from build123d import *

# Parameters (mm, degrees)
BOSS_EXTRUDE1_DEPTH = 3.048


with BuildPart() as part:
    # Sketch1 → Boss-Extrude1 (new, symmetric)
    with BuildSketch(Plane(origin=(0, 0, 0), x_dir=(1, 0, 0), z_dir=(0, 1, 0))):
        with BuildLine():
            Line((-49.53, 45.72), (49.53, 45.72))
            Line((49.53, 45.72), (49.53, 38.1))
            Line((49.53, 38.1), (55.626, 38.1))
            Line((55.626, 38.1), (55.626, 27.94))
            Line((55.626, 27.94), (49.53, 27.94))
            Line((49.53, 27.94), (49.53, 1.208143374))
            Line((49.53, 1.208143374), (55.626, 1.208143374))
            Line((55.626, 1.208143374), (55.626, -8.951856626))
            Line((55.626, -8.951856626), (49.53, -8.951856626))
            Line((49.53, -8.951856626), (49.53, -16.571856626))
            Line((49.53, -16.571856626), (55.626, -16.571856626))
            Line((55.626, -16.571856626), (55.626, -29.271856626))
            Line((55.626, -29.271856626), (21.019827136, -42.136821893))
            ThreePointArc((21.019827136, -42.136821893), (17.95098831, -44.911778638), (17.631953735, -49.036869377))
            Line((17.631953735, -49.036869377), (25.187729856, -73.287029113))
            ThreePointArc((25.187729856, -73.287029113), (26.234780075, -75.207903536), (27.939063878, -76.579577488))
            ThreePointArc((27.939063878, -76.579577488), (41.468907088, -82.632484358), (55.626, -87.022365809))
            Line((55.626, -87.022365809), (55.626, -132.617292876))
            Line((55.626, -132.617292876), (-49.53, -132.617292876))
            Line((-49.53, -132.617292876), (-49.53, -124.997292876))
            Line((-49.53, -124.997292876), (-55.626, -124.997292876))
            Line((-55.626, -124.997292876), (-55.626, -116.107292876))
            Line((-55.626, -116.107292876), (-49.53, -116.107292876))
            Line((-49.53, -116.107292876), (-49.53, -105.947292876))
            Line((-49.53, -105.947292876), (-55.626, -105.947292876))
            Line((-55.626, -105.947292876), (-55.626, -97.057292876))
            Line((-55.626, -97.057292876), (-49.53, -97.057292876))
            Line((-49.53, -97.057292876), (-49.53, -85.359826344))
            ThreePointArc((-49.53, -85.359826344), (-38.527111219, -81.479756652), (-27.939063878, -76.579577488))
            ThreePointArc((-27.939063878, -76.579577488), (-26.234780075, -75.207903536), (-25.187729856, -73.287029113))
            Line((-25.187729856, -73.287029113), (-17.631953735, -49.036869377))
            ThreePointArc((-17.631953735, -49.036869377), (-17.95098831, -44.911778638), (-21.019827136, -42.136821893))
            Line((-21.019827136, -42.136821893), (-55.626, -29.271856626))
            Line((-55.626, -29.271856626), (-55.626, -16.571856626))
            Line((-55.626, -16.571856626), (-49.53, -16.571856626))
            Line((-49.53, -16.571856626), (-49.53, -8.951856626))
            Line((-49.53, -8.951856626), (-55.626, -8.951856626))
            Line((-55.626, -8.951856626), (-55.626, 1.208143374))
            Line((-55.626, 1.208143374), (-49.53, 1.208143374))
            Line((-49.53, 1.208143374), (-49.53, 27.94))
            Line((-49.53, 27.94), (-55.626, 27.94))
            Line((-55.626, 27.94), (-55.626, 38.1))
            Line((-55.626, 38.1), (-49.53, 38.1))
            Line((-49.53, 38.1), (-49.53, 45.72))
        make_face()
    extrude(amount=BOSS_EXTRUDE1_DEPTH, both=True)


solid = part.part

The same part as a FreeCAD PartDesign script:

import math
import FreeCAD as App
import Part
import Sketcher

V = App.Vector
Q = App.Units.Quantity

doc = App.newDocument("Part")
body = doc.addObject("PartDesign::Body", "Body")

# Sketch on XZ plane
sketch1 = body.newObject("Sketcher::SketchObject", "Sketch")
sketch1.AttachmentSupport = (doc.getObject("XZ_Plane"), [""])
sketch1.MapMode = "FlatFace"
sketch1.addGeometry([
    Part.LineSegment(V(49.5, -45.7, 0), V(-49.5, -45.7, 0)),  # 0
    Part.LineSegment(V(-49.5, -45.7, 0), V(-49.5, -38.1, 0)),  # 1
    Part.LineSegment(V(-49.5, -38.1, 0), V(-55.6, -38.1, 0)),  # 2
    Part.LineSegment(V(-55.6, -38.1, 0), V(-55.6, -27.9, 0)),  # 3
    Part.LineSegment(V(-55.6, -27.9, 0), V(-49.5, -27.9, 0)),  # 4
    Part.LineSegment(V(-49.5, -27.9, 0), V(-49.5, -1.2, 0)),  # 5
    Part.LineSegment(V(-49.5, -1.2, 0), V(-55.6, -1.2, 0)),  # 6
    Part.LineSegment(V(-55.6, -1.2, 0), V(-55.6, 9, 0)),  # 7
    Part.LineSegment(V(-55.6, 9, 0), V(-49.5, 9, 0)),  # 8
    Part.LineSegment(V(-49.5, 9, 0), V(-49.5, 16.6, 0)),  # 9
    Part.LineSegment(V(-49.5, 16.6, 0), V(-55.6, 16.6, 0)),  # 10
    Part.LineSegment(V(-55.6, 16.6, 0), V(-55.6, 29.3, 0)),  # 11
    Part.LineSegment(V(-55.6, 29.3, 0), V(-21, 42.1, 0)),  # 12
    Part.ArcOfCircle(Part.Circle(V(-23, 47.4, 0), V(0, 0, 1), 5.6), math.radians(-70), math.radians(17)),  # 13
    Part.LineSegment(V(-17.6, 49, 0), V(-25.2, 73.3, 0)),  # 14
    Part.ArcOfCircle(Part.Circle(V(-30.5, 71.6, 0), V(0, 0, 1), 5.6), math.radians(17), math.radians(62)),  # 15
    Part.ArcOfCircle(Part.Circle(V(-85.1, -33, 0), V(0, 0, 1), 123.6), math.radians(62.46), math.radians(73.28)),  # 16
    Part.LineSegment(V(-49.5, 85.4, 0), V(-49.5, 97.1, 0)),  # 17
    Part.LineSegment(V(-49.5, 97.1, 0), V(-55.6, 97.1, 0)),  # 18
    Part.LineSegment(V(-55.6, 97.1, 0), V(-55.6, 105.9, 0)),  # 19
    Part.LineSegment(V(-55.6, 105.9, 0), V(-49.5, 105.9, 0)),  # 20
    Part.LineSegment(V(-49.5, 105.9, 0), V(-49.5, 116.1, 0)),  # 21
    Part.LineSegment(V(-49.5, 116.1, 0), V(-55.6, 116.1, 0)),  # 22
    Part.LineSegment(V(-55.6, 116.1, 0), V(-55.6, 125, 0)),  # 23
    Part.LineSegment(V(-55.6, 125, 0), V(-49.5, 125, 0)),  # 24
    Part.LineSegment(V(-49.5, 125, 0), V(-49.5, 132.6, 0)),  # 25
    Part.LineSegment(V(-49.5, 132.6, 0), V(55.6, 132.6, 0)),  # 26
    Part.LineSegment(V(55.6, 132.6, 0), V(55.6, 87, 0)),  # 27
    Part.ArcOfCircle(Part.Circle(V(85.1, -33, 0), V(0, 0, 1), 123.6), math.radians(103.79), math.radians(117.54)),  # 28
    Part.ArcOfCircle(Part.Circle(V(30.5, 71.6, 0), V(0, 0, 1), 5.6), math.radians(118), math.radians(163)),  # 29
    Part.LineSegment(V(25.2, 73.3, 0), V(17.6, 49, 0)),  # 30
    Part.ArcOfCircle(Part.Circle(V(23, 47.4, 0), V(0, 0, 1), 5.6), math.radians(163), math.radians(250)),  # 31
    Part.LineSegment(V(21, 42.1, 0), V(55.6, 29.3, 0)),  # 32
    Part.LineSegment(V(55.6, 29.3, 0), V(55.6, 16.6, 0)),  # 33
    Part.LineSegment(V(55.6, 16.6, 0), V(49.5, 16.6, 0)),  # 34
    Part.LineSegment(V(49.5, 16.6, 0), V(49.5, 9, 0)),  # 35
    Part.LineSegment(V(49.5, 9, 0), V(55.6, 9, 0)),  # 36
    Part.LineSegment(V(55.6, 9, 0), V(55.6, -1.2, 0)),  # 37
    Part.LineSegment(V(55.6, -1.2, 0), V(49.5, -1.2, 0)),  # 38
    Part.LineSegment(V(49.5, -1.2, 0), V(49.5, -27.9, 0)),  # 39
    Part.LineSegment(V(49.5, -27.9, 0), V(55.6, -27.9, 0)),  # 40
    Part.LineSegment(V(55.6, -27.9, 0), V(55.6, -38.1, 0)),  # 41
    Part.LineSegment(V(55.6, -38.1, 0), V(49.5, -38.1, 0)),  # 42
    Part.LineSegment(V(49.5, -38.1, 0), V(49.5, -45.7, 0)),  # 43
], False)
sketch1.addConstraint([
    Sketcher.Constraint("Coincident", 0, 2, 1, 1),
    Sketcher.Constraint("Coincident", 1, 2, 2, 1),
    Sketcher.Constraint("Coincident", 2, 2, 3, 1),
    Sketcher.Constraint("Coincident", 3, 2, 4, 1),
    Sketcher.Constraint("Coincident", 4, 2, 5, 1),
    Sketcher.Constraint("Coincident", 5, 2, 6, 1),
    Sketcher.Constraint("Coincident", 6, 2, 7, 1),
    Sketcher.Constraint("Coincident", 7, 2, 8, 1),
    Sketcher.Constraint("Coincident", 8, 2, 9, 1),
    Sketcher.Constraint("Coincident", 9, 2, 10, 1),
    Sketcher.Constraint("Coincident", 10, 2, 11, 1),
    Sketcher.Constraint("Coincident", 11, 2, 12, 1),
    Sketcher.Constraint("Tangent", 12, 2, 13, 1),
    Sketcher.Constraint("Tangent", 13, 2, 14, 1),
    Sketcher.Constraint("Tangent", 14, 2, 15, 1),
    Sketcher.Constraint("Tangent", 15, 2, 16, 1),
    Sketcher.Constraint("Coincident", 16, 2, 17, 1),
    Sketcher.Constraint("Coincident", 17, 2, 18, 1),
    Sketcher.Constraint("Coincident", 18, 2, 19, 1),
    Sketcher.Constraint("Coincident", 19, 2, 20, 1),
    Sketcher.Constraint("Coincident", 20, 2, 21, 1),
    Sketcher.Constraint("Coincident", 21, 2, 22, 1),
    Sketcher.Constraint("Coincident", 22, 2, 23, 1),
    Sketcher.Constraint("Coincident", 23, 2, 24, 1),
    Sketcher.Constraint("Coincident", 24, 2, 25, 1),
    Sketcher.Constraint("Coincident", 25, 2, 26, 1),
    Sketcher.Constraint("Coincident", 26, 2, 27, 1),
    Sketcher.Constraint("Coincident", 27, 2, 28, 1),
    Sketcher.Constraint("Tangent", 28, 2, 29, 1),
    Sketcher.Constraint("Tangent", 29, 2, 30, 1),
    Sketcher.Constraint("Tangent", 30, 2, 31, 1),
    Sketcher.Constraint("Tangent", 31, 2, 32, 1),
    Sketcher.Constraint("Coincident", 32, 2, 33, 1),
    Sketcher.Constraint("Coincident", 33, 2, 34, 1),
    Sketcher.Constraint("Coincident", 34, 2, 35, 1),
    Sketcher.Constraint("Coincident", 35, 2, 36, 1),
    Sketcher.Constraint("Coincident", 36, 2, 37, 1),
    Sketcher.Constraint("Coincident", 37, 2, 38, 1),
    Sketcher.Constraint("Coincident", 38, 2, 39, 1),
    Sketcher.Constraint("Coincident", 39, 2, 40, 1),
    Sketcher.Constraint("Coincident", 40, 2, 41, 1),
    Sketcher.Constraint("Coincident", 41, 2, 42, 1),
    Sketcher.Constraint("Coincident", 42, 2, 43, 1),
    Sketcher.Constraint("Coincident", 43, 2, 0, 1),
    Sketcher.Constraint("Horizontal", 0),
    Sketcher.Constraint("Vertical", 1),
    Sketcher.Constraint("Horizontal", 2),
    Sketcher.Constraint("Vertical", 3),
    Sketcher.Constraint("Horizontal", 4),
    Sketcher.Constraint("Vertical", 5),
    Sketcher.Constraint("Horizontal", 6),
    Sketcher.Constraint("Vertical", 7),
    Sketcher.Constraint("Horizontal", 8),
    Sketcher.Constraint("Vertical", 9),
    Sketcher.Constraint("Horizontal", 10),
    Sketcher.Constraint("Vertical", 11),
    Sketcher.Constraint("Vertical", 17),
    Sketcher.Constraint("Horizontal", 18),
    Sketcher.Constraint("Vertical", 19),
    Sketcher.Constraint("Horizontal", 20),
    Sketcher.Constraint("Vertical", 21),
    Sketcher.Constraint("Horizontal", 22),
    Sketcher.Constraint("Vertical", 23),
    Sketcher.Constraint("Horizontal", 24),
    Sketcher.Constraint("Vertical", 25),
    Sketcher.Constraint("Horizontal", 26),
    Sketcher.Constraint("Vertical", 27),
    Sketcher.Constraint("Vertical", 33),
    Sketcher.Constraint("Horizontal", 34),
    Sketcher.Constraint("Vertical", 35),
    Sketcher.Constraint("Horizontal", 36),
    Sketcher.Constraint("Vertical", 37),
    Sketcher.Constraint("Horizontal", 38),
    Sketcher.Constraint("Vertical", 39),
    Sketcher.Constraint("Horizontal", 40),
    Sketcher.Constraint("Vertical", 41),
    Sketcher.Constraint("Horizontal", 42),
    Sketcher.Constraint("Vertical", 43),
    Sketcher.Constraint("Equal", 13, 15),
    Sketcher.Constraint("Equal", 16, 28),
    Sketcher.Constraint("Equal", 15, 29),
    Sketcher.Constraint("Equal", 29, 31),
    Sketcher.Constraint("Symmetric", 16, 3, 28, 3, -2),
    Sketcher.Constraint("Symmetric", 13, 3, 31, 3, -2),
    Sketcher.Constraint("Symmetric", 11, 2, 32, 2, -2),
    Sketcher.Constraint("Symmetric", 9, 2, 34, 2, -2),
    Sketcher.Constraint("Symmetric", 7, 2, 36, 2, -2),
    Sketcher.Constraint("Symmetric", 5, 2, 38, 2, -2),
    Sketcher.Constraint("Symmetric", 3, 2, 40, 2, -2),
    Sketcher.Constraint("Symmetric", 1, 2, 42, 2, -2),
    Sketcher.Constraint("Horizontal", 15, 3, 29, 3),
    Sketcher.Constraint("Vertical", 1, 2, 4, 2),
    Sketcher.Constraint("Vertical", 3, 2, 6, 2),
    Sketcher.Constraint("Vertical", 5, 2, 8, 2),
    Sketcher.Constraint("Vertical", 7, 2, 10, 2),
    Sketcher.Constraint("Vertical", 9, 2, 16, 2),
    Sketcher.Constraint("Vertical", 11, 2, 18, 2),
    Sketcher.Constraint("Vertical", 17, 2, 20, 2),
    Sketcher.Constraint("Vertical", 19, 2, 22, 2),
    Sketcher.Constraint("Vertical", 21, 2, 24, 2),
    Sketcher.Constraint("Vertical", 27, 2, 32, 2),
    Sketcher.Constraint("Equal", 3, 7),
    Sketcher.Constraint("Equal", 1, 9),
    Sketcher.Constraint("Equal", 7, 21),
    Sketcher.Constraint("Equal", 19, 23),
    Sketcher.Constraint("Equal", 9, 25),
    Sketcher.Constraint("Radius", 13, Q("0.22 in")),
    Sketcher.Constraint("Distance", 14, Q("1 in")),
    Sketcher.Constraint("DistanceX", 0, 2, 0, 1, Q("3.9 in")),
    Sketcher.Constraint("DistanceY", 1, 1, 1, 2, Q("0.3 in")),
    Sketcher.Constraint("DistanceY", 3, 1, 3, 2, Q("0.4 in")),
    Sketcher.Constraint("DistanceY", 11, 1, 11, 2, Q("0.5 in")),
    Sketcher.Constraint("DistanceX", 2, 2, 2, 1, Q("0.24 in")),
    Sketcher.Constraint("DistanceY", 19, 1, 19, 2, Q("0.35 in")),
    Sketcher.Constraint("DistanceY", 16, 3, -1, 1, Q("1.3 in")),
    Sketcher.Constraint("DistanceY", 0, 2, -1, 1, Q("1.8 in")),
    Sketcher.Constraint("DistanceX", 16, 3, 28, 3, Q("6.7 in")),
    Sketcher.Constraint("Radius", 16, 123.605408),
    Sketcher.Constraint("DistanceY", -1, 1, 13, 3, 47.374599),
    Sketcher.Constraint("DistanceY", 32, 2, 29, 3, 42.352902),
    Sketcher.Constraint("Distance", 12, 36.92011),
    Sketcher.Constraint("DistanceY", 17, 1, 17, 2, 11.697467),
])
pad1 = body.newObject("PartDesign::Pad", "Pad")
pad1.Profile = sketch1
pad1.Length = Q("0.24 in")
pad1.Midplane = True

doc.recompute()
